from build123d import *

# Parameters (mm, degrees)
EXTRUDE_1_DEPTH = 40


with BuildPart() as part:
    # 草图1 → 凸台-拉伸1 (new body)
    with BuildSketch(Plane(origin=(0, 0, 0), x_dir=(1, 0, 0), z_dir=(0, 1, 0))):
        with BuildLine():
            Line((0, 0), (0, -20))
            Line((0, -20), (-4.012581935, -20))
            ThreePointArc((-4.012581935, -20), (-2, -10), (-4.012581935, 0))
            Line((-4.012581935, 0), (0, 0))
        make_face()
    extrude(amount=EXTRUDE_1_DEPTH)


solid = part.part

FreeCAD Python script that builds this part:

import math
import FreeCAD as App
import Part
import Sketcher
Q = App.Units.Quantity

doc = App.newDocument("Part")
body = doc.addObject("PartDesign::Body", "Body")

# Sketch on XZ plane
sketch1 = doc.addObject("Sketcher::SketchObject", "Sketch")
body.addObject(sketch1)
sketch1.AttachmentSupport = (doc.XZ_Plane, [""])
sketch1.MapMode = "FlatFace"
sketch1.addGeometry([
    Part.LineSegment(App.Vector(0, 20, 0), App.Vector(0, 0, 0)),
    Part.LineSegment(App.Vector(0, 0, 0), App.Vector(-4, 0, 0)),
    Part.ArcOfCircle(Part.Circle(App.Vector(-27.9, 10, 0), App.Vector(0, 0, 1), 25.9), math.radians(-23), math.radians(23)),
    Part.LineSegment(App.Vector(-4, 20, 0), App.Vector(0, 20, 0)),
], False)
sketch1.addConstraint([
    Sketcher.Constraint("Coincident", 0, 2, 1, 1),
    Sketcher.Constraint("Coincident", 1, 2, 2, 1),
    Sketcher.Constraint("Coincident", 2, 2, 3, 1),
    Sketcher.Constraint("Coincident", 3, 2, 0, 1),
    Sketcher.Constraint("Vertical", 0),
    Sketcher.Constraint("Horizontal", 1),
    Sketcher.Constraint("Horizontal", 3),
    Sketcher.Constraint("Coincident", 0, 2, -1, 1),
    Sketcher.Constraint("Vertical", 1, 2, 2, 2),
    Sketcher.Constraint("DistanceY", 0, 2, 0, 1, Q("20 mm")),
    Sketcher.Constraint("Radius", 2, Q("25.85 mm")),
    Sketcher.Constraint("DistanceX", 2, 3, -1, 1, Q("27.85 mm")),
])
pad1 = doc.addObject("PartDesign::Pad", "Pad")
body.addObject(pad1)
pad1.Profile = sketch1
pad1.Length = 40
pad1.Reversed = True

doc.recompute()
